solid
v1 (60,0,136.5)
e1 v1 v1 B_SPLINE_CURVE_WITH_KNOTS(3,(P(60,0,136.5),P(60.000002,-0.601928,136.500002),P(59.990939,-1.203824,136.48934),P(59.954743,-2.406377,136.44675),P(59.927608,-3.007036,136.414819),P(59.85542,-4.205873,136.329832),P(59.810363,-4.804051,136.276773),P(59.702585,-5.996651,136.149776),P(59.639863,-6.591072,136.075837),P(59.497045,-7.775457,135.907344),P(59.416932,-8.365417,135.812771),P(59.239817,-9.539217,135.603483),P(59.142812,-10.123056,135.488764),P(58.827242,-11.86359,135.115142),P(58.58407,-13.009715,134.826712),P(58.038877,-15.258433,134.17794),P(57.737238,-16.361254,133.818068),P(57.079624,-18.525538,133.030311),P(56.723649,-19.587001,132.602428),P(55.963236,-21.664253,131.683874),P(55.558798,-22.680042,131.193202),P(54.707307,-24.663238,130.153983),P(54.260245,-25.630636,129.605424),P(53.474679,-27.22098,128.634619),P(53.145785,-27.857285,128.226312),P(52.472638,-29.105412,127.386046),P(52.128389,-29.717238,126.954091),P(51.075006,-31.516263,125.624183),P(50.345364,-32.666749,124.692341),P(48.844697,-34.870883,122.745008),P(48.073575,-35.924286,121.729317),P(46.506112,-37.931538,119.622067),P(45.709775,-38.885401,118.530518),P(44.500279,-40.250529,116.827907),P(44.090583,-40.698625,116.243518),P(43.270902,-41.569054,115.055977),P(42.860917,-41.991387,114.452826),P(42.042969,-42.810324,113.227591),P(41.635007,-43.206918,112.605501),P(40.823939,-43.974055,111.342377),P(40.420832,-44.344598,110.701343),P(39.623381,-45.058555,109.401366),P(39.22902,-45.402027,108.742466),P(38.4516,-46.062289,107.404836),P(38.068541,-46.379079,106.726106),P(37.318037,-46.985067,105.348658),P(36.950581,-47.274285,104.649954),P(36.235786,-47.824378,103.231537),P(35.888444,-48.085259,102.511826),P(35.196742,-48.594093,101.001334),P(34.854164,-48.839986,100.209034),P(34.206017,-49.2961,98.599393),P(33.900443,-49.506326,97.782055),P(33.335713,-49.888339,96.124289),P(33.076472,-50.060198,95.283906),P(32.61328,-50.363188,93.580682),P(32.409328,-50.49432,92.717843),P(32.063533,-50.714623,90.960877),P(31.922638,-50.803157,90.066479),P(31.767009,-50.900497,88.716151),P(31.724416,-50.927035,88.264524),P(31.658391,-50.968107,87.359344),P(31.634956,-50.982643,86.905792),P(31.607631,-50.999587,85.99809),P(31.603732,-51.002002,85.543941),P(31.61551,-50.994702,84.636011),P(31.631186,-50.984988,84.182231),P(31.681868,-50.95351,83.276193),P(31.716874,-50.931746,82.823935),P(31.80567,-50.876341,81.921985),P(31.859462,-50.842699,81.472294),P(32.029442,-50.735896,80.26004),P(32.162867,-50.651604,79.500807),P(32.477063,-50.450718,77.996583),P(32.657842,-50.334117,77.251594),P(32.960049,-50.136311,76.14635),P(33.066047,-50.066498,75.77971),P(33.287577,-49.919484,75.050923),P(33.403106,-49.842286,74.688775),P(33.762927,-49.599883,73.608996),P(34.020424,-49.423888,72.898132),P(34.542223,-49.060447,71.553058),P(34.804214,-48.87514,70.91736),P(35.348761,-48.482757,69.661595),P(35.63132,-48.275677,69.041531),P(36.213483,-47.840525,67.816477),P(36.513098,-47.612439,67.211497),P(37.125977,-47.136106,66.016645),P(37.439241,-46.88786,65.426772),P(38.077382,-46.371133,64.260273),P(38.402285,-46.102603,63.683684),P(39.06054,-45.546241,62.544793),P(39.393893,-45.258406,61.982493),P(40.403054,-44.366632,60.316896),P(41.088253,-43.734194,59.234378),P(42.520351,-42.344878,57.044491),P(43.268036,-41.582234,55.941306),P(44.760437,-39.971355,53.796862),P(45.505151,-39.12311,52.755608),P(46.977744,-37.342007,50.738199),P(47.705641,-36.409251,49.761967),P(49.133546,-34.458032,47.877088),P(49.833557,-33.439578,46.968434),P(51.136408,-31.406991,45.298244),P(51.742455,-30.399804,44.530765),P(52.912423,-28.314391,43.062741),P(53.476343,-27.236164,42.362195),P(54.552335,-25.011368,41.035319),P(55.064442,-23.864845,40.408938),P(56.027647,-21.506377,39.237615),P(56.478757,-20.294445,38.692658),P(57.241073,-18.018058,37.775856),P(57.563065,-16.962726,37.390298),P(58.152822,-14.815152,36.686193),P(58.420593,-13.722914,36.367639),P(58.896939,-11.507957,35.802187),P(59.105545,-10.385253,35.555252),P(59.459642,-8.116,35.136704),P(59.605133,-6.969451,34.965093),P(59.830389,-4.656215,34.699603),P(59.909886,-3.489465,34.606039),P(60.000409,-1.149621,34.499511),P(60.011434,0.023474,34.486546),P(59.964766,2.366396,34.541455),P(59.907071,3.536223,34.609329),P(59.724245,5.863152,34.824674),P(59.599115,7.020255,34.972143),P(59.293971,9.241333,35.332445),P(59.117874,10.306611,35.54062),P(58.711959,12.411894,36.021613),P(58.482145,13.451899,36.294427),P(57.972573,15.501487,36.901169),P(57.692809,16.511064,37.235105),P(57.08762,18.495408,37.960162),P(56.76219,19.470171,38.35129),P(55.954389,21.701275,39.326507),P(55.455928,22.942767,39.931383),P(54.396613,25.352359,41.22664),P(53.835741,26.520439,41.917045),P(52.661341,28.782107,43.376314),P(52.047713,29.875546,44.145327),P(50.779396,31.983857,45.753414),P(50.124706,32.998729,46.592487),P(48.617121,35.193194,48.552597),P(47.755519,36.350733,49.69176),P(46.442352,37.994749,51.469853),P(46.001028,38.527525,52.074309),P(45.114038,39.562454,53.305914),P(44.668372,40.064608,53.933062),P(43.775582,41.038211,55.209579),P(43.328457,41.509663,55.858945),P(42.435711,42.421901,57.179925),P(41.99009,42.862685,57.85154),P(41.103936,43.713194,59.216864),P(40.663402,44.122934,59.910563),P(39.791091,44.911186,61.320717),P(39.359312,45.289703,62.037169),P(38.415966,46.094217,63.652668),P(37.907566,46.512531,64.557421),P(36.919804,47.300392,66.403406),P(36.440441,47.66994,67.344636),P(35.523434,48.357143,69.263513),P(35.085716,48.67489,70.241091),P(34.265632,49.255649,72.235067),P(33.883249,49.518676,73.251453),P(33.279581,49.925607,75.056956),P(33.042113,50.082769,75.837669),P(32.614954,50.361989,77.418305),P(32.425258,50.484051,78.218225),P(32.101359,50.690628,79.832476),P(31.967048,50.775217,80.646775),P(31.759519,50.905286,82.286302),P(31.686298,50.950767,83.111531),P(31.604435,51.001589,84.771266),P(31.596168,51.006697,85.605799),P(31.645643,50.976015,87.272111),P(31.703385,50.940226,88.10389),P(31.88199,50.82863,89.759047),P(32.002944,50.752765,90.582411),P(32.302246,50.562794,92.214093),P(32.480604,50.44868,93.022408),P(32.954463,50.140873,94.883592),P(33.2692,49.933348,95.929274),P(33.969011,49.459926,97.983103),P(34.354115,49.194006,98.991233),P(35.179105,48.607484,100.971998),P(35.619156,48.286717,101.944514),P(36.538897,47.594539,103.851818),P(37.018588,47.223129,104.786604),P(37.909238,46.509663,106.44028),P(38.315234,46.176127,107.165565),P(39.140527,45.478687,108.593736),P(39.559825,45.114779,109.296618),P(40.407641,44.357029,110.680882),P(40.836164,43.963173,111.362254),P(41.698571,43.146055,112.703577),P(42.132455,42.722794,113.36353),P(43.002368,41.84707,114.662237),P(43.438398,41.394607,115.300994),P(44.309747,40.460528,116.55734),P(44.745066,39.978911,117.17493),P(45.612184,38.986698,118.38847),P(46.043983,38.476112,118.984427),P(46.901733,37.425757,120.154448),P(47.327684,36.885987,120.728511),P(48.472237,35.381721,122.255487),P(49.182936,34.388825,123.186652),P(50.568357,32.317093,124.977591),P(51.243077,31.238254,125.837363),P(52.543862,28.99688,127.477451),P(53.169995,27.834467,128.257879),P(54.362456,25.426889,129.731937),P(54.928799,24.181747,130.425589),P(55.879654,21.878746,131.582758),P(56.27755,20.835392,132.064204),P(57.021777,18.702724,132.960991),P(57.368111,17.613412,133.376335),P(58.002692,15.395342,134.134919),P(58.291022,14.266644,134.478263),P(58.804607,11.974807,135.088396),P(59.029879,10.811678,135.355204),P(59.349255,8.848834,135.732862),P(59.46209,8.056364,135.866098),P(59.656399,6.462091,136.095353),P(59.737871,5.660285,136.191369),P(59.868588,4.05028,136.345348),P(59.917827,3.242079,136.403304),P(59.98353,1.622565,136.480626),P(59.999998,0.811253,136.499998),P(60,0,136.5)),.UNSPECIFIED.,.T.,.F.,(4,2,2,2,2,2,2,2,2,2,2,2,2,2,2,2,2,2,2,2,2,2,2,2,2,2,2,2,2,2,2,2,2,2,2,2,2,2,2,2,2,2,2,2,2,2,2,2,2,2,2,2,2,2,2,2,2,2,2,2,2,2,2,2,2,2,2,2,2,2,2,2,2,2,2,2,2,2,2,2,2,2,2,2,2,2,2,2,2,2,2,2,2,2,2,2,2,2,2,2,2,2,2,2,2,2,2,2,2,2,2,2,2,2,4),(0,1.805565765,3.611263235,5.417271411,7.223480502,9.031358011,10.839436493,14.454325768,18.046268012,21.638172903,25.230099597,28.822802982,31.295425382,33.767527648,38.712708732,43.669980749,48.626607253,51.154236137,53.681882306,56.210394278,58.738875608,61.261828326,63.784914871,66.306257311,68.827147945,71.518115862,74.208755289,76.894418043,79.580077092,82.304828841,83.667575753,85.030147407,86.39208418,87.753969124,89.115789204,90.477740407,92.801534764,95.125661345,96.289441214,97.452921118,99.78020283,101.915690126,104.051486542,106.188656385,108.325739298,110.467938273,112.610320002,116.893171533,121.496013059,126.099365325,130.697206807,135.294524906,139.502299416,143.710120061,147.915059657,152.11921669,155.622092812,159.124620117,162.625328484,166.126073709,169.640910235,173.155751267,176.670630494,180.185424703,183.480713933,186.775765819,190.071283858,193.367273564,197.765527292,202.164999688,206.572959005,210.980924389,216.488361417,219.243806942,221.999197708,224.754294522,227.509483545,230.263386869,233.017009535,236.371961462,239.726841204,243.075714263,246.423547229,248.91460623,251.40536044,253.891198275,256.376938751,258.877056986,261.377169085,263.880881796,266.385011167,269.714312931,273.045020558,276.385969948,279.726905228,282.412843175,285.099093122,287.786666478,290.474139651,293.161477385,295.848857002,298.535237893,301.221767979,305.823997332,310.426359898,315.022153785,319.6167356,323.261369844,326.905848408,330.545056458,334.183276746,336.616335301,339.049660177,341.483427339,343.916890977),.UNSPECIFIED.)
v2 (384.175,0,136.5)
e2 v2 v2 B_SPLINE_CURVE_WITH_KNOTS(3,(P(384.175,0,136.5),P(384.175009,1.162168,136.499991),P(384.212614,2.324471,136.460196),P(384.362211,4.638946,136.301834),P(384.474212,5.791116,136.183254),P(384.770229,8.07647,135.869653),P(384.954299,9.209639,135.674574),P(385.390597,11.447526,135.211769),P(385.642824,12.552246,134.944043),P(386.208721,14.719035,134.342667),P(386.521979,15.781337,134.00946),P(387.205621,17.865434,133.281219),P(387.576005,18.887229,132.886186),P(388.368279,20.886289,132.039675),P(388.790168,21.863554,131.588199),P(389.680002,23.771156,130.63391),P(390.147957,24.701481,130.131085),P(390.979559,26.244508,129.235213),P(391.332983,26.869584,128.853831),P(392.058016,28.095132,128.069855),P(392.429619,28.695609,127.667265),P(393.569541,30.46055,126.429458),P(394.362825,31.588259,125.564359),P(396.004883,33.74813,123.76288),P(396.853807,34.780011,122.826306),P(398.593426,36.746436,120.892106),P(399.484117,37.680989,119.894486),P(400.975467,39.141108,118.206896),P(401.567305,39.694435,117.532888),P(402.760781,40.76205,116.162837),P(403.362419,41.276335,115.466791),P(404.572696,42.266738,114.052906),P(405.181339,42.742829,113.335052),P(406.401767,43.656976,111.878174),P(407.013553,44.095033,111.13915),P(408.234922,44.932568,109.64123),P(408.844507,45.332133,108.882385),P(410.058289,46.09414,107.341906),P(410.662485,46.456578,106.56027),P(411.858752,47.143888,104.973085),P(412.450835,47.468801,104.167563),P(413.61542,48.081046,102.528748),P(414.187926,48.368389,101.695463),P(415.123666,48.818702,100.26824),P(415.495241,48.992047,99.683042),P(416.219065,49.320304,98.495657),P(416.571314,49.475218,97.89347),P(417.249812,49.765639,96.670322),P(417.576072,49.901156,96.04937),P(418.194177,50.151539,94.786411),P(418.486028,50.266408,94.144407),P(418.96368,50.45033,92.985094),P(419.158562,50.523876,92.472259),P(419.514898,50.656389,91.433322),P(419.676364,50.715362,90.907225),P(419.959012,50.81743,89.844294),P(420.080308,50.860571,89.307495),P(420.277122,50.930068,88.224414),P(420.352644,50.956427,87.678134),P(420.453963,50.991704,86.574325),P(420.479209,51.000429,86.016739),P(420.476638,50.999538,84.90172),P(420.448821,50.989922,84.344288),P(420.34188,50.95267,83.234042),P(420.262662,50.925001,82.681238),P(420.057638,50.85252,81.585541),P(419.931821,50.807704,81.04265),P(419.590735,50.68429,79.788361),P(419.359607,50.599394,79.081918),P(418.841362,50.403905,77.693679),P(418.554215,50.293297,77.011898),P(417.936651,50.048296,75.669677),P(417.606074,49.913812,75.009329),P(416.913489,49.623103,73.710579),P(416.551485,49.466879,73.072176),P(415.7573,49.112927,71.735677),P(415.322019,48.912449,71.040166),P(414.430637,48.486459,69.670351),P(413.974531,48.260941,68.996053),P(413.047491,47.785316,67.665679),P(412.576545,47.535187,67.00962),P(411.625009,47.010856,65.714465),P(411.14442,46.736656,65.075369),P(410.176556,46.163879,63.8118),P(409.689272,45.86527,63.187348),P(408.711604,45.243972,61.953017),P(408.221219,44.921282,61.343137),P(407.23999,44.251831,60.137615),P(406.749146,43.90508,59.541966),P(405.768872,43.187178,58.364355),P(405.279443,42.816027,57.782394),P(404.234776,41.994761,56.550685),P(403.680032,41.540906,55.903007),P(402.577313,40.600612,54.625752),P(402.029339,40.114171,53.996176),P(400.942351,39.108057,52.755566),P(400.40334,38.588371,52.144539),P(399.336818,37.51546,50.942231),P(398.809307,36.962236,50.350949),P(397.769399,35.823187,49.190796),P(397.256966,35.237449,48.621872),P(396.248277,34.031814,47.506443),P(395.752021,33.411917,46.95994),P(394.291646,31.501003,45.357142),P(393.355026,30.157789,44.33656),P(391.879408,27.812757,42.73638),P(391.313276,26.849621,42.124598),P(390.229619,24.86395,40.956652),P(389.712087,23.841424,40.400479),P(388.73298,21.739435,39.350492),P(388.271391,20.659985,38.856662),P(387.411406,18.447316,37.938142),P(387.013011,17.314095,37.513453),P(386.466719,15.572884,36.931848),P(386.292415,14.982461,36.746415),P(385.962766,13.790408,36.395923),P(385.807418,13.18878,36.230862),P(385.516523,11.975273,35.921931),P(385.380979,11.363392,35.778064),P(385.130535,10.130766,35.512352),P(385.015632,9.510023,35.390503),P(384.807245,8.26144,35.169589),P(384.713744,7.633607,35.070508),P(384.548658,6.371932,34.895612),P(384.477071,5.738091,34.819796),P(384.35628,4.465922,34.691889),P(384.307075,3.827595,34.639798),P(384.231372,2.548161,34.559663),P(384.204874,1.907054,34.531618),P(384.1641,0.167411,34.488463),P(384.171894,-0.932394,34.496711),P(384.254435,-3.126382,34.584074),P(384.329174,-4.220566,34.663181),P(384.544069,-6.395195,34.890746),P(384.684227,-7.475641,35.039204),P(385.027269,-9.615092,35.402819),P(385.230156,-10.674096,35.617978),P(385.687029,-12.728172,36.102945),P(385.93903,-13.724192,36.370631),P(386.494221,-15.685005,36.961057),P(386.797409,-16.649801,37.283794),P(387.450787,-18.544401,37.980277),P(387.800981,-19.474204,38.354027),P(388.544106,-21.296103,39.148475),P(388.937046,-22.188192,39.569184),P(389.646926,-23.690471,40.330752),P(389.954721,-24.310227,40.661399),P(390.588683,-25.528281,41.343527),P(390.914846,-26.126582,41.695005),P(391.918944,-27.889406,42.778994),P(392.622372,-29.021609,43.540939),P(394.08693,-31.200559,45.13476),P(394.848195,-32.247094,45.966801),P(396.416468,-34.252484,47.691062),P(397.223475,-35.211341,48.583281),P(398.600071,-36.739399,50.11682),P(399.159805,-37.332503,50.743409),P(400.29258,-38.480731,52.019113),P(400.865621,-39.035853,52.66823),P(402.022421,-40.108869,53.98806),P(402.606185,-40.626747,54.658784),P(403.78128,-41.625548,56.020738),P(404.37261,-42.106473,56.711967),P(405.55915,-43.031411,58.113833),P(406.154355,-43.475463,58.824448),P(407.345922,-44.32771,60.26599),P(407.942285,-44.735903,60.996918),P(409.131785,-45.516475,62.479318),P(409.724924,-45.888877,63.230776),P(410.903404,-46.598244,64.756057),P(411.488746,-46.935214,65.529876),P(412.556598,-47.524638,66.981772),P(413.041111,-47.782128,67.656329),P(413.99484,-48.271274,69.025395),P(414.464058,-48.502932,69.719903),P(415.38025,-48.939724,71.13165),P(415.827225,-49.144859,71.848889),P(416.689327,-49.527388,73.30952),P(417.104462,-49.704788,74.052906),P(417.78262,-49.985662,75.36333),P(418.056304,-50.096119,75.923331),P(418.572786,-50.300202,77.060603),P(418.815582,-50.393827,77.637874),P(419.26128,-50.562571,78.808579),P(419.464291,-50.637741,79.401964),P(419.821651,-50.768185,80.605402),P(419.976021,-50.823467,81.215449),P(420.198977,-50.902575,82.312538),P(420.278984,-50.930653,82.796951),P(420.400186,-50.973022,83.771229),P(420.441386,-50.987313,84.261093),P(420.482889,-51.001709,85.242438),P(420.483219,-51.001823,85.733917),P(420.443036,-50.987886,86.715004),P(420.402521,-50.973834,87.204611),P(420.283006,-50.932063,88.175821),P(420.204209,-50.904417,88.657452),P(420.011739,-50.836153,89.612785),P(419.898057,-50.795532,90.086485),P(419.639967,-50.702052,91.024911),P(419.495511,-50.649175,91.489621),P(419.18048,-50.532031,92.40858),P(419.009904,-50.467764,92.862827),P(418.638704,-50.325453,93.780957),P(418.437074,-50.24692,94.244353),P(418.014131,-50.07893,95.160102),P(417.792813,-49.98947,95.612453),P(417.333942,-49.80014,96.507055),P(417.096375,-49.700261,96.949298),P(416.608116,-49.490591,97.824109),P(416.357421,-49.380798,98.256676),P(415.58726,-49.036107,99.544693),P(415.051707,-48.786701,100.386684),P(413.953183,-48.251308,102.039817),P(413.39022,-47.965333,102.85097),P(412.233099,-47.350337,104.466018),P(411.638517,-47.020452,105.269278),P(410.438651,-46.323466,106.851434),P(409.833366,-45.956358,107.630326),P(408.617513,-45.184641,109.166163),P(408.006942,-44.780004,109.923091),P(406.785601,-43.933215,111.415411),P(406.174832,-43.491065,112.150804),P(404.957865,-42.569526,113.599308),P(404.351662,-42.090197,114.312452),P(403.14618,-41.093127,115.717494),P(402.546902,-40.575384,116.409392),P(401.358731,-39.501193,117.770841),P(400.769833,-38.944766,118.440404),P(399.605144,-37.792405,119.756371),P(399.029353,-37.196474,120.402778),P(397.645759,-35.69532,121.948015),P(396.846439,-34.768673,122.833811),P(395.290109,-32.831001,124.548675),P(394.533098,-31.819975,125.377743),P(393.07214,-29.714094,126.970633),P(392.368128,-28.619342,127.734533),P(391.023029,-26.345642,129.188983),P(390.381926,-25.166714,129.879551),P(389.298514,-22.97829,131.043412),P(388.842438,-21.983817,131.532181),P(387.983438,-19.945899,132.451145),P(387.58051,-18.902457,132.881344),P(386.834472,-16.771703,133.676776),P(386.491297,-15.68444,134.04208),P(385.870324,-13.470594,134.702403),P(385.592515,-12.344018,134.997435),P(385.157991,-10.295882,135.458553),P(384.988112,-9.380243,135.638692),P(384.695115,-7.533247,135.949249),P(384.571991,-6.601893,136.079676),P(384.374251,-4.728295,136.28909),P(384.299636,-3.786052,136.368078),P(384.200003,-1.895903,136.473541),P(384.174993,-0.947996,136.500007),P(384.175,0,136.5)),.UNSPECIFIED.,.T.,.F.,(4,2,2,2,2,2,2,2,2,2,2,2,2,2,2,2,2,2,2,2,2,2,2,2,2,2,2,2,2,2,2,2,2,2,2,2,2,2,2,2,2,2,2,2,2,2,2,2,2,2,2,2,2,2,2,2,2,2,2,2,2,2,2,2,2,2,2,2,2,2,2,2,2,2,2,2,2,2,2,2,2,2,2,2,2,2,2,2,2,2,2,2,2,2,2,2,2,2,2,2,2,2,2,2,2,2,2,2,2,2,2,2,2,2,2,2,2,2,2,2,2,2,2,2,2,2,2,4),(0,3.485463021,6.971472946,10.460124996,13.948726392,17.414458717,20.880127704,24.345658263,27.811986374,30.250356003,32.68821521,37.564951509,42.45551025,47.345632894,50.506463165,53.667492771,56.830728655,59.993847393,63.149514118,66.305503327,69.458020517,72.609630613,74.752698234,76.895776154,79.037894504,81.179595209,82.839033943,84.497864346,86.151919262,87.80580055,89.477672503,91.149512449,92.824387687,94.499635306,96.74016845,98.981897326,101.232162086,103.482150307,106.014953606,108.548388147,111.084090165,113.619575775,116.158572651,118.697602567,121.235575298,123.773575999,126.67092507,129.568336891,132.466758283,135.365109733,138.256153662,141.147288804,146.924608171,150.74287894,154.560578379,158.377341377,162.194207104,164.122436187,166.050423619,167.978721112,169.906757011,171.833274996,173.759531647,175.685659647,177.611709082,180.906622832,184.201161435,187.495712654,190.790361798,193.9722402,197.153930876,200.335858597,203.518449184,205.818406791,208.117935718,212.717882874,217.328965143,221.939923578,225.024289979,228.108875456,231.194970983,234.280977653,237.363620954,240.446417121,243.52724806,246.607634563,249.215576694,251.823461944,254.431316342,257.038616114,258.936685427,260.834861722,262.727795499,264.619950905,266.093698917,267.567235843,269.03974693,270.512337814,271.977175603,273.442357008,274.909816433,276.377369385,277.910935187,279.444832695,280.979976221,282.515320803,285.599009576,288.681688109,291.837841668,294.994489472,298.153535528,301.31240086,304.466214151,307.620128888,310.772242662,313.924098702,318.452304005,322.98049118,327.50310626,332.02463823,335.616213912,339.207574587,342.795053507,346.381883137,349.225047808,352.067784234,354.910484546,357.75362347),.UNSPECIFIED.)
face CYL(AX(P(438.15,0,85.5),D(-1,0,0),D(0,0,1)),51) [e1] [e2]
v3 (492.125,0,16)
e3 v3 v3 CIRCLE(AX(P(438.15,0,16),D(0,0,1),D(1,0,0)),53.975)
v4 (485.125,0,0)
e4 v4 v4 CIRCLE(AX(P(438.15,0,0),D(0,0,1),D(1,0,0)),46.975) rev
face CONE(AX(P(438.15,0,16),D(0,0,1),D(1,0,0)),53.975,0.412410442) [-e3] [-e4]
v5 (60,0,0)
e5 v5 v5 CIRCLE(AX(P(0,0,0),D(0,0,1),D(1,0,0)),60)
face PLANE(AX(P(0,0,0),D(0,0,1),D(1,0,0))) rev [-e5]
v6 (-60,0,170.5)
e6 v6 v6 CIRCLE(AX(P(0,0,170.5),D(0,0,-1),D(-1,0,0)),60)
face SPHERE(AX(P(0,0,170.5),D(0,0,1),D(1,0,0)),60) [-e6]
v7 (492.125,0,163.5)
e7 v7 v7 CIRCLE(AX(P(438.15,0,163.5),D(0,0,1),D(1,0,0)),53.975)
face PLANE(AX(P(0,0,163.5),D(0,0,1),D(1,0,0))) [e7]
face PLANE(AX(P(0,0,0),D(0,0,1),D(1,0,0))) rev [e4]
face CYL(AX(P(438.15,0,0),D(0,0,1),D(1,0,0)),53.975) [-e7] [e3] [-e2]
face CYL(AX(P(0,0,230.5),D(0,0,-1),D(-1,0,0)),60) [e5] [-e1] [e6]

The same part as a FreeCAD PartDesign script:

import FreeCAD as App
import Part
import Sketcher
from FreeCAD import Vector
Q = App.Units.Quantity


def edges_at(feature, points):
    """Names of the edges that pass closest to the given points."""
    edges = feature.Shape.Edges
    near = lambda p: min(range(len(edges)), key=lambda i: edges[i].distToShape(Part.Vertex(*p))[0])
    return sorted({f"Edge{near(p) + 1}" for p in points})

doc = App.newDocument("Part")
params = doc.addObject("Spreadsheet::Sheet", "Params")
for row, (alias, value) in enumerate([
    ("sketch1_diameter", "120 mm"),
    ("pad1_length", "230.5 mm"),
    ("fillet_radius", "60 mm"),
    ("sketch2_diameter", "102 mm"),
    ("pad2_length", "438.15 mm"),
    ("sketch3_diameter", "107.95 mm"),
    ("pad3_length", "78 mm"),
    ("pad3_length2", "85.5 mm"),
    ("chamfer_size", "7 mm"),
    ("chamfer_size2", "16 mm"),
], start=1):
    params.set(f"A{row}", alias)
    params.set(f"B{row}", "=" + value)
    params.setAlias(f"B{row}", alias)

body = doc.addObject("PartDesign::Body", "Body")

sketch1 = doc.addObject("Sketcher::SketchObject", "Sketch")
body.addObject(sketch1)
sketch1.AttachmentSupport = (doc.XY_Plane, [""])
sketch1.MapMode = "FlatFace"
sketch1.addGeometry(Part.Circle(Vector(0, 0, 0), Vector(0, 0, 1), 60), False)
sketch1.addConstraint(Sketcher.Constraint("Coincident", 0, 3, -1, 1))
sketch1.addConstraint(Sketcher.Constraint("Diameter", 0, Q("120 mm")))
sketch1.setExpression("Constraints[1]", "Params.sketch1_diameter")
pad1 = doc.addObject("PartDesign::Pad", "Pad")
body.addObject(pad1)
pad1.Profile = sketch1
pad1.setExpression("Length", "Params.pad1_length")
doc.recompute()

fillet = doc.addObject("PartDesign::Fillet", "Fillet")
body.addObject(fillet)
fillet.Base = (pad1, edges_at(pad1, [(-60, 0, 230.5)]))
fillet.setExpression("Radius", "Params.fillet_radius")

sketch2 = doc.addObject("Sketcher::SketchObject", "Sketch001")
body.addObject(sketch2)
sketch2.AttachmentSupport = (doc.YZ_Plane, [""])
sketch2.MapMode = "FlatFace"
sketch2.addGeometry(Part.Circle(Vector(0, 86, 0), Vector(0, 0, 1), 51), False)
sketch2.addConstraint(Sketcher.Constraint("PointOnObject", 0, 3, -2))
sketch2.addConstraint(Sketcher.Constraint("Diameter", 0, Q("102 mm")))
sketch2.addConstraint(Sketcher.Constraint("DistanceY", -1, 1, 0, 3, Q("85.5 mm")))
sketch2.setExpression("Constraints[1]", "Params.sketch2_diameter")
pad2 = doc.addObject("PartDesign::Pad", "Pad001")
body.addObject(pad2)
pad2.Profile = sketch2
pad2.setExpression("Length", "Params.pad2_length")

sketch3 = doc.addObject("Sketcher::SketchObject", "Sketch002")
body.addObject(sketch3)
sketch3.AttachmentSupport = (doc.XY_Plane, [""])
sketch3.MapMode = "FlatFace"
sketch3.AttachmentOffset = App.Placement(Vector(0, 0, 85.5), App.Rotation())
sketch3.addGeometry(Part.Circle(Vector(438, 0, 0), Vector(0, 0, 1), 54), False)
sketch3.addConstraint(Sketcher.Constraint("PointOnObject", 0, 3, -1))
sketch3.addConstraint(Sketcher.Constraint("Diameter", 0, Q("107.95 mm")))
sketch3.addConstraint(Sketcher.Constraint("DistanceX", -1, 1, 0, 3, Q("438.15 mm")))
sketch3.setExpression("Constraints[1]", "Params.sketch3_diameter")
pad3 = doc.addObject("PartDesign::Pad", "Pad002")
body.addObject(pad3)
pad3.Profile = sketch3
pad3.Type = "TwoLengths"
pad3.setExpression("Length", "Params.pad3_length")
pad3.setExpression("Length2", "Params.pad3_length2")
doc.recompute()

chamfer = doc.addObject("PartDesign::Chamfer", "Chamfer")
body.addObject(chamfer)
chamfer.Base = (pad3, edges_at(pad3, [(384.175, 0, 0)]))
chamfer.ChamferType = "Two distances"
chamfer.setExpression("Size", "Params.chamfer_size")
chamfer.setExpression("Size2", "Params.chamfer_size2")
chamfer.FlipDirection = True

doc.recompute()
